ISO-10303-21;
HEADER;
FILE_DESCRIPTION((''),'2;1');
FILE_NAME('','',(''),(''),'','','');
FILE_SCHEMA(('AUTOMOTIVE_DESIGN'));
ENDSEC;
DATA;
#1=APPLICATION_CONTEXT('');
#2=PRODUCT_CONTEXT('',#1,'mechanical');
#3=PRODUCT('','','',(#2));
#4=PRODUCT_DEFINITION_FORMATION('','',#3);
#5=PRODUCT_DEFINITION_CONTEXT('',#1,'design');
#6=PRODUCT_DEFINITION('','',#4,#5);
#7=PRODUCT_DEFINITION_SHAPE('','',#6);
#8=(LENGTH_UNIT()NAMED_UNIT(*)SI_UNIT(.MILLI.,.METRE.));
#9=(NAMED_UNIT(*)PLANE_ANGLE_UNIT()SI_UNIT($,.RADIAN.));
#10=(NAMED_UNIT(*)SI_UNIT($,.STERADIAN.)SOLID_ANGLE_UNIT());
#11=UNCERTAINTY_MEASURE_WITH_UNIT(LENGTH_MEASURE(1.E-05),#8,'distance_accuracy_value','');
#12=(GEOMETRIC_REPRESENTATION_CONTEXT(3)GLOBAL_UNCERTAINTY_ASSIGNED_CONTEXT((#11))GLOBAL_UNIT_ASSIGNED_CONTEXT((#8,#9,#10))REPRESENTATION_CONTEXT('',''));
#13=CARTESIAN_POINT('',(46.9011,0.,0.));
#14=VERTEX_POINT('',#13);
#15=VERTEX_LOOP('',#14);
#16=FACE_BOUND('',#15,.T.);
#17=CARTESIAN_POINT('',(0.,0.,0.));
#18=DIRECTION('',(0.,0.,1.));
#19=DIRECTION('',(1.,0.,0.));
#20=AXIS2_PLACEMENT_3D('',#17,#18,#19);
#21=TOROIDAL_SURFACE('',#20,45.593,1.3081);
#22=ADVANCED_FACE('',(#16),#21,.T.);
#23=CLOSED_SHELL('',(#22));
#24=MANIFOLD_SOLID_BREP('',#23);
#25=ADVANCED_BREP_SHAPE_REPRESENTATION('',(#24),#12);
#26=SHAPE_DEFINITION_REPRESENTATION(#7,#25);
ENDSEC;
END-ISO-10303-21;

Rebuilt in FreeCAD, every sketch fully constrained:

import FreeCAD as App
import Part
import Sketcher

V = App.Vector
Q = App.Units.Quantity

doc = App.newDocument("Part")
body = doc.addObject("PartDesign::Body", "Body")

# Sketch on YZ plane
sketch1 = body.newObject("Sketcher::SketchObject", "Sketch")
sketch1.AttachmentSupport = (doc.getObject("YZ_Plane"), [""])
sketch1.MapMode = "FlatFace"
sketch1.addGeometry(Part.Circle(V(-45.593, 0, 0), V(0, 0, 1), 1.3081), False)
sketch1.addConstraint(Sketcher.Constraint("PointOnObject", 0, 3, -1))
sketch1.addConstraint(Sketcher.Constraint("Diameter", 0, Q("0.103 in")))
sketch1.addConstraint(Sketcher.Constraint("DistanceX", 0, 3, -1, 1, Q("1.795 in")))
revolution = body.newObject("PartDesign::Revolution", "Revolution")
revolution.Profile = sketch1
revolution.ReferenceAxis = (sketch1, ["V_Axis"])
revolution.Angle = 360

doc.recompute()
